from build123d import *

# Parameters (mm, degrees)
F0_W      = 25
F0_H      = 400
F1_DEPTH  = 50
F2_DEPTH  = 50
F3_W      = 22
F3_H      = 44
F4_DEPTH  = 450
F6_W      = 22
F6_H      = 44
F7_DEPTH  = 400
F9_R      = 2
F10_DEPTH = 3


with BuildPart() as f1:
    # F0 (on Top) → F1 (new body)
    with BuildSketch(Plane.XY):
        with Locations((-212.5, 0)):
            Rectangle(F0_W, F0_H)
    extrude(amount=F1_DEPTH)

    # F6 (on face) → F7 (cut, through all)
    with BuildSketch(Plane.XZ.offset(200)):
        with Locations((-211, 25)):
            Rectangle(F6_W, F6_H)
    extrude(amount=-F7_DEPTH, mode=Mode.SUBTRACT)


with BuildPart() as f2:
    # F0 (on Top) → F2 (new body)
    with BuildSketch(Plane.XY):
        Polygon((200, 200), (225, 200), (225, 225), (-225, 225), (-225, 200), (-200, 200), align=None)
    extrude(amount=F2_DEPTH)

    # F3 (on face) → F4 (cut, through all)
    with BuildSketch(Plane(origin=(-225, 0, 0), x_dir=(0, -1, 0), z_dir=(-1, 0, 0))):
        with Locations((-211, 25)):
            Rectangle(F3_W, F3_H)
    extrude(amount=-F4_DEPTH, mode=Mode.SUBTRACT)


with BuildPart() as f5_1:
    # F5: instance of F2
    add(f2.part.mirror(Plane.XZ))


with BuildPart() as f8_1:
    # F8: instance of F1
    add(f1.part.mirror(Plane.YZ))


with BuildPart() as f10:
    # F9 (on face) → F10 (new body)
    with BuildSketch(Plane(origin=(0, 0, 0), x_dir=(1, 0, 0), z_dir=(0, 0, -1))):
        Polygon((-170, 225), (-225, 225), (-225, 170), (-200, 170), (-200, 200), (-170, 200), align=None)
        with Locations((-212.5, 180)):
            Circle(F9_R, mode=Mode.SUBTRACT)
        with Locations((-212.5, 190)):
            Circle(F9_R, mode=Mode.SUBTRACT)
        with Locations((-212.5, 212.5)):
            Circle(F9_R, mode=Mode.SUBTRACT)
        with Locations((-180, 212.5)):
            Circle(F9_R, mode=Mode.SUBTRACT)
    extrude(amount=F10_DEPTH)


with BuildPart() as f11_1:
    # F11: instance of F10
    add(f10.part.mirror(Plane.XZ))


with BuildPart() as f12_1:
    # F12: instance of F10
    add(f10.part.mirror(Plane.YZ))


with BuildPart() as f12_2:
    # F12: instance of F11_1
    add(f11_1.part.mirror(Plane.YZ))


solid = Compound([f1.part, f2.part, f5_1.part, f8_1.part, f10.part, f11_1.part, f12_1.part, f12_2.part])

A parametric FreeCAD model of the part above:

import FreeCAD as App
import Part
import Sketcher


def add_polygon(sketch, points):
    """Adds a closed chain of lines whose ends are joined by coincident constraints."""
    first, n = sketch.GeometryCount, len(points)
    for a, b in zip(points, points[1:] + points[:1]):
        sketch.addGeometry(Part.LineSegment(App.Vector(*a, 0), App.Vector(*b, 0)), False)
    for i in range(n):
        sketch.addConstraint(Sketcher.Constraint("Coincident", first + i, 2, first + (i + 1) % n, 1))

doc = App.newDocument("Part")
body = doc.addObject("PartDesign::Body", "Body")

# Sketch on XY plane
sketch1 = body.newObject("Sketcher::SketchObject", "Sketch")
sketch1.AttachmentSupport = (doc.getObject("XY_Plane"), [""])
sketch1.MapMode = "FlatFace"
add_polygon(sketch1, [(-225, 200), (-225, -200), (-200, -200), (-200, 200)])  # lines 0-3
sketch1.addConstraint(Sketcher.Constraint("Vertical", 0))
sketch1.addConstraint(Sketcher.Constraint("Horizontal", 1))
sketch1.addConstraint(Sketcher.Constraint("Vertical", 2))
sketch1.addConstraint(Sketcher.Constraint("Horizontal", 3))
sketch1.addConstraint(Sketcher.Constraint("DistanceX", 1, 1, 1, 2, 25.0))
sketch1.addConstraint(Sketcher.Constraint("DistanceY", 0, 2, 0, 1, 400.0))
sketch1.addConstraint(Sketcher.Constraint("DistanceX", 0, 2, -1, 1, 225.0))
sketch1.addConstraint(Sketcher.Constraint("DistanceY", 0, 2, -1, 1, 200.0))
pad1 = body.newObject("PartDesign::Pad", "Pad")
pad1.Profile = sketch1
pad1.Length = 50

# Sketch on XZ plane
sketch2 = body.newObject("Sketcher::SketchObject", "Sketch001")
sketch2.AttachmentSupport = (doc.getObject("XZ_Plane"), [""])
sketch2.MapMode = "FlatFace"
sketch2.AttachmentOffset = App.Placement(App.Vector(0, 0, 200), App.Rotation())
add_polygon(sketch2, [(-222, 47), (-222, 3), (-200, 3), (-200, 47)])  # lines 0-3
sketch2.addConstraint(Sketcher.Constraint("Vertical", 0))
sketch2.addConstraint(Sketcher.Constraint("Horizontal", 1))
sketch2.addConstraint(Sketcher.Constraint("Vertical", 2))
sketch2.addConstraint(Sketcher.Constraint("Horizontal", 3))
sketch2.addConstraint(Sketcher.Constraint("DistanceX", 1, 1, 1, 2, 22.0))
sketch2.addConstraint(Sketcher.Constraint("DistanceY", 0, 2, 0, 1, 44.0))
sketch2.addConstraint(Sketcher.Constraint("DistanceX", 0, 2, -1, 1, 222.0))
sketch2.addConstraint(Sketcher.Constraint("DistanceY", -1, 1, 0, 2, 3.0))
pocket1 = body.newObject("PartDesign::Pocket", "Pocket")
pocket1.Profile = sketch2
pocket1.Type = "ThroughAll"
body2 = doc.addObject("PartDesign::Body", "Body001")

# Sketch on XY plane
sketch3 = body2.newObject("Sketcher::SketchObject", "Sketch002")
sketch3.AttachmentSupport = (doc.getObject("XY_Plane001"), [""])
sketch3.MapMode = "FlatFace"
add_polygon(sketch3, [(225, 200), (225, 225), (-225, 225), (-225, 200)])  # lines 0-3
sketch3.addConstraint(Sketcher.Constraint("Vertical", 0))
sketch3.addConstraint(Sketcher.Constraint("Horizontal", 1))
sketch3.addConstraint(Sketcher.Constraint("Vertical", 2))
sketch3.addConstraint(Sketcher.Constraint("Horizontal", 3))
sketch3.addConstraint(Sketcher.Constraint("DistanceX", 1, 2, 1, 1, 450.0))
sketch3.addConstraint(Sketcher.Constraint("DistanceY", 0, 1, 0, 2, 25.0))
sketch3.addConstraint(Sketcher.Constraint("DistanceX", -1, 1, 0, 2, 225.0))
sketch3.addConstraint(Sketcher.Constraint("DistanceY", -1, 1, 0, 2, 225.0))
pad2 = body2.newObject("PartDesign::Pad", "Pad001")
pad2.Profile = sketch3
pad2.Length = 50

# Sketch on YZ plane
sketch4 = body2.newObject("Sketcher::SketchObject", "Sketch003")
sketch4.AttachmentSupport = (doc.getObject("YZ_Plane001"), [""])
sketch4.MapMode = "FlatFace"
sketch4.AttachmentOffset = App.Placement(App.Vector(0, 0, -225), App.Rotation())
add_polygon(sketch4, [(222, 47), (222, 3), (200, 3), (200, 47)])  # lines 0-3
sketch4.addConstraint(Sketcher.Constraint("Vertical", 0))
sketch4.addConstraint(Sketcher.Constraint("Horizontal", 1))
sketch4.addConstraint(Sketcher.Constraint("Vertical", 2))
sketch4.addConstraint(Sketcher.Constraint("Horizontal", 3))
sketch4.addConstraint(Sketcher.Constraint("DistanceX", 1, 2, 1, 1, 22.0))
sketch4.addConstraint(Sketcher.Constraint("DistanceY", 0, 2, 0, 1, 44.0))
sketch4.addConstraint(Sketcher.Constraint("DistanceX", -1, 1, 0, 2, 222.0))
sketch4.addConstraint(Sketcher.Constraint("DistanceY", -1, 1, 0, 2, 3.0))
pocket2 = body2.newObject("PartDesign::Pocket", "Pocket001")
pocket2.Profile = sketch4
pocket2.Type = "ThroughAll"
pocket2.Reversed = True
body3 = doc.addObject("PartDesign::Body", "Body002")
doc.recompute()

mirroring = doc.addObject("Part::Mirroring", "Mirroring")
mirroring.Source = body2
mirroring.Base = App.Vector(0, 0, 0)
mirroring.Normal = App.Vector(0, -1, 0)
body3.BaseFeature = mirroring
doc.recompute()
body4 = doc.addObject("PartDesign::Body", "Body003")
doc.recompute()

mirroring2 = doc.addObject("Part::Mirroring", "Mirroring001")
mirroring2.Source = body
mirroring2.Base = App.Vector(0, 0, 0)
mirroring2.Normal = App.Vector(1, 0, 0)
body4.BaseFeature = mirroring2
doc.recompute()
body5 = doc.addObject("PartDesign::Body", "Body004")

# Sketch on XY plane
sketch5 = body5.newObject("Sketcher::SketchObject", "Sketch004")
sketch5.AttachmentSupport = (doc.getObject("XY_Plane004"), [""])
sketch5.MapMode = "FlatFace"
add_polygon(sketch5, [(-170, -225), (-225, -225), (-225, -170), (-200, -170), (-200, -200), (-170, -200)])  # lines 0-5
sketch5.addGeometry(Part.Circle(App.Vector(-212.5, -180, 0), App.Vector(0, 0, 1), 2), False)  # 6
sketch5.addGeometry(Part.Circle(App.Vector(-212.5, -190, 0), App.Vector(0, 0, 1), 2), False)  # 7
sketch5.addGeometry(Part.Circle(App.Vector(-212.5, -212.5, 0), App.Vector(0, 0, 1), 2), False)  # 8
sketch5.addGeometry(Part.Circle(App.Vector(-180, -212.5, 0), App.Vector(0, 0, 1), 2), False)  # 9
sketch5.addConstraint(Sketcher.Constraint("Horizontal", 0))
sketch5.addConstraint(Sketcher.Constraint("Vertical", 1))
sketch5.addConstraint(Sketcher.Constraint("Horizontal", 2))
sketch5.addConstraint(Sketcher.Constraint("Vertical", 3))
sketch5.addConstraint(Sketcher.Constraint("Horizontal", 4))
sketch5.addConstraint(Sketcher.Constraint("Vertical", 5))
sketch5.addConstraint(Sketcher.Constraint("Equal", 6, 7))
sketch5.addConstraint(Sketcher.Constraint("Equal", 7, 8))
sketch5.addConstraint(Sketcher.Constraint("Equal", 8, 9))
sketch5.addConstraint(Sketcher.Constraint("Horizontal", 8, 3, 9, 3))
sketch5.addConstraint(Sketcher.Constraint("Vertical", 6, 3, 7, 3))
sketch5.addConstraint(Sketcher.Constraint("Vertical", 7, 3, 8, 3))
sketch5.addConstraint(Sketcher.Constraint("Equal", 0, 1))
sketch5.addConstraint(Sketcher.Constraint("Equal", 4, 3))
sketch5.addConstraint(Sketcher.Constraint("Diameter", 6, 4.0))
sketch5.addConstraint(Sketcher.Constraint("DistanceX", 0, 2, 0, 1, 55.0))
sketch5.addConstraint(Sketcher.Constraint("DistanceX", 2, 1, 2, 2, 25.0))
sketch5.addConstraint(Sketcher.Constraint("DistanceY", 6, 3, -1, 1, 180.0))
sketch5.addConstraint(Sketcher.Constraint("DistanceY", 7, 3, -1, 1, 190.0))
sketch5.addConstraint(Sketcher.Constraint("DistanceX", 9, 3, -1, 1, 180.0))
sketch5.addConstraint(Sketcher.Constraint("DistanceX", 0, 2, -1, 1, 225.0))
sketch5.addConstraint(Sketcher.Constraint("DistanceY", 0, 2, -1, 1, 225.0))
sketch5.addConstraint(Sketcher.Constraint("DistanceX", 6, 3, -1, 1, 212.5))
sketch5.addConstraint(Sketcher.Constraint("DistanceY", 8, 3, -1, 1, 212.5))
pad3 = body5.newObject("PartDesign::Pad", "Pad002")
pad3.Profile = sketch5
pad3.Length = 3
pad3.Reversed = True
body6 = doc.addObject("PartDesign::Body", "Body005")
doc.recompute()

mirroring3 = doc.addObject("Part::Mirroring", "Mirroring002")
mirroring3.Source = body5
mirroring3.Base = App.Vector(0, 0, 0)
mirroring3.Normal = App.Vector(0, -1, 0)
body6.BaseFeature = mirroring3
doc.recompute()
body7 = doc.addObject("PartDesign::Body", "Body006")
doc.recompute()

mirroring4 = doc.addObject("Part::Mirroring", "Mirroring003")
mirroring4.Source = body5
mirroring4.Base = App.Vector(0, 0, 0)
mirroring4.Normal = App.Vector(1, 0, 0)
body7.BaseFeature = mirroring4
doc.recompute()
body8 = doc.addObject("PartDesign::Body", "Body007")
doc.recompute()

mirroring5 = doc.addObject("Part::Mirroring", "Mirroring004")
mirroring5.Source = body6
mirroring5.Base = App.Vector(0, 0, 0)
mirroring5.Normal = App.Vector(1, 0, 0)
body8.BaseFeature = mirroring5
doc.recompute()
mirroring.Visibility = False
mirroring2.Visibility = False
mirroring3.Visibility = False
mirroring4.Visibility = False
mirroring5.Visibility = False

doc.recompute()
